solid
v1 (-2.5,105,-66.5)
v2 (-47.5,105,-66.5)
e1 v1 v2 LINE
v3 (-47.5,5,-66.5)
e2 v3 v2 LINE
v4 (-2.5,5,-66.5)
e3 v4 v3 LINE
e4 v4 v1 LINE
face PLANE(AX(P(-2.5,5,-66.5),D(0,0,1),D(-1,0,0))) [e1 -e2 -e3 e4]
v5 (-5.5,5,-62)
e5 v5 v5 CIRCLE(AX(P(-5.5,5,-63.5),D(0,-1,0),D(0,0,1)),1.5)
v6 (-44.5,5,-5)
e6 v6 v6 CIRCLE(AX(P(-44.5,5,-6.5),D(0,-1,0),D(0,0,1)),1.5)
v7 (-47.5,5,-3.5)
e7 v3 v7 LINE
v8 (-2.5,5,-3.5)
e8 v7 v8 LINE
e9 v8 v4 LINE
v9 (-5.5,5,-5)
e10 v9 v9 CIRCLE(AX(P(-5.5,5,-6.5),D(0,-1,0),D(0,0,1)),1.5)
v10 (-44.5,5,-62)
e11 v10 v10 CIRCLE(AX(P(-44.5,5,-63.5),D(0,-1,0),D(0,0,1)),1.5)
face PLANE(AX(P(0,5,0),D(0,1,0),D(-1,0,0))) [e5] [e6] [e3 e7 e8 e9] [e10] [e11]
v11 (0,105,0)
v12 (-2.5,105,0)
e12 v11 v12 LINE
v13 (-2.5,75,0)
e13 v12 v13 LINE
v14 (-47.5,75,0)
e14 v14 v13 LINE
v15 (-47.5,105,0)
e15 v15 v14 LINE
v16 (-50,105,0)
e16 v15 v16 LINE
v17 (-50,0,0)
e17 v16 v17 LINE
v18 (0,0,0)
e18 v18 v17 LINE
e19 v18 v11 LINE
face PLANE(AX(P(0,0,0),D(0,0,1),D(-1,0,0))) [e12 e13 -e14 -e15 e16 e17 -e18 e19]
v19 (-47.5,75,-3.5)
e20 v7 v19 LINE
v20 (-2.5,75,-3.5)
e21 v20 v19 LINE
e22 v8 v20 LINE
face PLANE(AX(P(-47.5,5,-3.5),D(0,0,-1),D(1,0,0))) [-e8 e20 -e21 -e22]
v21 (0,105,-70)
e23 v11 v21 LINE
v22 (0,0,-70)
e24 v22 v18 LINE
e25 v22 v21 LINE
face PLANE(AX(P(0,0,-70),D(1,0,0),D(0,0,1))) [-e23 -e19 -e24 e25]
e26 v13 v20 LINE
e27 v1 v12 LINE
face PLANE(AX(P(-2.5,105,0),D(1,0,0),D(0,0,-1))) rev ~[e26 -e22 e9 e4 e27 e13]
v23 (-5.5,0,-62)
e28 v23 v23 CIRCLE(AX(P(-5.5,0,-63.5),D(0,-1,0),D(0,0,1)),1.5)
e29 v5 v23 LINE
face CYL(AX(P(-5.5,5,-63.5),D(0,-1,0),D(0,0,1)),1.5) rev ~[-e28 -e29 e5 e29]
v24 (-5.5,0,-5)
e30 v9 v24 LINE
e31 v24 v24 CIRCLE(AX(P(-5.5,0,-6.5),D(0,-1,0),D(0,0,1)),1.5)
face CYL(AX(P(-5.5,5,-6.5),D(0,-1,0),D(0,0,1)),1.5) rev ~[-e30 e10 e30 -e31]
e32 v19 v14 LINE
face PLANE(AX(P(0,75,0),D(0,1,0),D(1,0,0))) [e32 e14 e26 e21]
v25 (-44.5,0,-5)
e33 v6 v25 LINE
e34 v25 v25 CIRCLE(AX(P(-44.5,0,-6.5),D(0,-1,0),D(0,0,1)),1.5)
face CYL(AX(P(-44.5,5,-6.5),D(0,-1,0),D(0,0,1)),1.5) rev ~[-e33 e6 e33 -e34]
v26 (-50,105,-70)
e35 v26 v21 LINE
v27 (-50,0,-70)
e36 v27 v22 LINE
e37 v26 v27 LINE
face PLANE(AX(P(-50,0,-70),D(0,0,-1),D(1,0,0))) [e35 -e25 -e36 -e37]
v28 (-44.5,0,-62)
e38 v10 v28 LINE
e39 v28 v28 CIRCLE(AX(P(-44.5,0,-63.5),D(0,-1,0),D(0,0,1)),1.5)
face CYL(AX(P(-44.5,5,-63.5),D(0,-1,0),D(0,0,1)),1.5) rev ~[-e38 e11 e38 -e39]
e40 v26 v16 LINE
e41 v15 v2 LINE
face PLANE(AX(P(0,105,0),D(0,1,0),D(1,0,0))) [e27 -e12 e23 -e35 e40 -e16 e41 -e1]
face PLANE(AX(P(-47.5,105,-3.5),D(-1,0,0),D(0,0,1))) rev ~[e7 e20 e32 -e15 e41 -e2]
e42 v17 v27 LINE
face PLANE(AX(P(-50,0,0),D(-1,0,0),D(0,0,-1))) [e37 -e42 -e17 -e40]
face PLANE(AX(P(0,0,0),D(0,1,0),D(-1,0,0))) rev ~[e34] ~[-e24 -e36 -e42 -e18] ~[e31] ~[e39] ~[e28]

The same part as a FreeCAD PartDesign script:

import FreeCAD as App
import Part
import Sketcher
Q = App.Units.Quantity

doc = App.newDocument("Part")
body = doc.addObject("PartDesign::Body", "Body")

# Sketch on XZ plane
sketch1 = body.newObject("Sketcher::SketchObject", "Sketch")
sketch1.AttachmentSupport = (doc.getObject("XZ_Plane"), [""])
sketch1.MapMode = "FlatFace"
sketch1.addGeometry(Part.LineSegment(App.Vector(-50, 0, 0), App.Vector(0, 0, 0)), False)
sketch1.addGeometry(Part.LineSegment(App.Vector(0, 0, 0), App.Vector(0, -70, 0)), False)
sketch1.addGeometry(Part.LineSegment(App.Vector(0, -70, 0), App.Vector(-50, -70, 0)), False)
sketch1.addGeometry(Part.LineSegment(App.Vector(-50, -70, 0), App.Vector(-50, 0, 0)), False)
sketch1.addConstraint(Sketcher.Constraint("Coincident", 0, 2, 1, 1))
sketch1.addConstraint(Sketcher.Constraint("Coincident", 1, 2, 2, 1))
sketch1.addConstraint(Sketcher.Constraint("Coincident", 2, 2, 3, 1))
sketch1.addConstraint(Sketcher.Constraint("Coincident", 3, 2, 0, 1))
sketch1.addConstraint(Sketcher.Constraint("Horizontal", 0))
sketch1.addConstraint(Sketcher.Constraint("Vertical", 1))
sketch1.addConstraint(Sketcher.Constraint("Horizontal", 2))
sketch1.addConstraint(Sketcher.Constraint("Vertical", 3))
sketch1.addConstraint(Sketcher.Constraint("Coincident", 0, 2, -1, 1))
sketch1.addConstraint(Sketcher.Constraint("DistanceX", 0, 1, 0, 2, Q("50 mm")))
sketch1.addConstraint(Sketcher.Constraint("DistanceY", 1, 2, 1, 1, Q("70 mm")))
pad1 = body.newObject("PartDesign::Pad", "Pad")
pad1.Profile = sketch1
pad1.Length = 5
pad1.Reversed = True

# Sketch on XZ plane
sketch2 = body.newObject("Sketcher::SketchObject", "Sketch001")
sketch2.AttachmentSupport = (doc.getObject("XZ_Plane"), [""])
sketch2.MapMode = "FlatFace"
sketch2.AttachmentOffset = App.Placement(App.Vector(0, 0, -5), App.Rotation())
sketch2.addGeometry(Part.LineSegment(App.Vector(-50, 0, 0), App.Vector(0, 0, 0)), False)
sketch2.addGeometry(Part.LineSegment(App.Vector(0, 0, 0), App.Vector(0, -70, 0)), False)
sketch2.addGeometry(Part.LineSegment(App.Vector(0, -70, 0), App.Vector(-50, -70, 0)), False)
sketch2.addGeometry(Part.LineSegment(App.Vector(-50, -70, 0), App.Vector(-50, 0, 0)), False)
sketch2.addGeometry(Part.LineSegment(App.Vector(-48, -66, 0), App.Vector(-2, -66, 0)), False)
sketch2.addGeometry(Part.LineSegment(App.Vector(-2, -66, 0), App.Vector(-2, -4, 0)), False)
sketch2.addGeometry(Part.LineSegment(App.Vector(-2, -4, 0), App.Vector(-48, -4, 0)), False)
sketch2.addGeometry(Part.LineSegment(App.Vector(-48, -4, 0), App.Vector(-48, -66, 0)), False)
sketch2.addConstraint(Sketcher.Constraint("Coincident", 0, 2, 1, 1))
sketch2.addConstraint(Sketcher.Constraint("Coincident", 1, 2, 2, 1))
sketch2.addConstraint(Sketcher.Constraint("Coincident", 2, 2, 3, 1))
sketch2.addConstraint(Sketcher.Constraint("Coincident", 3, 2, 0, 1))
sketch2.addConstraint(Sketcher.Constraint("Coincident", 4, 2, 5, 1))
sketch2.addConstraint(Sketcher.Constraint("Coincident", 5, 2, 6, 1))
sketch2.addConstraint(Sketcher.Constraint("Coincident", 6, 2, 7, 1))
sketch2.addConstraint(Sketcher.Constraint("Coincident", 7, 2, 4, 1))
sketch2.addConstraint(Sketcher.Constraint("Horizontal", 0))
sketch2.addConstraint(Sketcher.Constraint("Vertical", 1))
sketch2.addConstraint(Sketcher.Constraint("Horizontal", 2))
sketch2.addConstraint(Sketcher.Constraint("Vertical", 3))
sketch2.addConstraint(Sketcher.Constraint("Horizontal", 4))
sketch2.addConstraint(Sketcher.Constraint("Vertical", 5))
sketch2.addConstraint(Sketcher.Constraint("Horizontal", 6))
sketch2.addConstraint(Sketcher.Constraint("Vertical", 7))
sketch2.addConstraint(Sketcher.Constraint("Coincident", 0, 2, -1, 1))
sketch2.addConstraint(Sketcher.Constraint("DistanceX", 0, 1, 0, 2, Q("50 mm")))
sketch2.addConstraint(Sketcher.Constraint("DistanceX", 4, 1, 4, 2, Q("45 mm")))
sketch2.addConstraint(Sketcher.Constraint("DistanceY", 5, 1, 5, 2, Q("63 mm")))
sketch2.addConstraint(Sketcher.Constraint("DistanceX", 4, 2, -1, 1, Q("2.5 mm")))
sketch2.addConstraint(Sketcher.Constraint("DistanceY", 5, 2, -1, 1, Q("3.5 mm")))
sketch2.addConstraint(Sketcher.Constraint("DistanceY", 1, 2, 4, 2, Q("3.5 mm")))
pad2 = body.newObject("PartDesign::Pad", "Pad001")
pad2.Profile = sketch2
pad2.Length = 100
pad2.Reversed = True

# Sketch on XZ plane
sketch3 = body.newObject("Sketcher::SketchObject", "Sketch002")
sketch3.AttachmentSupport = (doc.getObject("XZ_Plane"), [""])
sketch3.MapMode = "FlatFace"
sketch3.AttachmentOffset = App.Placement(App.Vector(0, 0, -5), App.Rotation())
sketch3.addGeometry(Part.Circle(App.Vector(-44.5, -6.5, 0), App.Vector(0, 0, 1), 1.5), False)
sketch3.addGeometry(Part.Circle(App.Vector(-5.5, -6.5, 0), App.Vector(0, 0, 1), 1.5), False)
sketch3.addGeometry(Part.Circle(App.Vector(-5.5, -63.5, 0), App.Vector(0, 0, 1), 1.5), False)
sketch3.addGeometry(Part.Circle(App.Vector(-44.5, -63.5, 0), App.Vector(0, 0, 1), 1.5), False)
sketch3.addConstraint(Sketcher.Constraint("Equal", 0, 1))
sketch3.addConstraint(Sketcher.Constraint("Equal", 1, 2))
sketch3.addConstraint(Sketcher.Constraint("Equal", 2, 3))
sketch3.addConstraint(Sketcher.Constraint("Horizontal", 0, 3, 1, 3))
sketch3.addConstraint(Sketcher.Constraint("Horizontal", 2, 3, 3, 3))
sketch3.addConstraint(Sketcher.Constraint("Vertical", 1, 3, 2, 3))
sketch3.addConstraint(Sketcher.Constraint("Vertical", 0, 3, 3, 3))
sketch3.addConstraint(Sketcher.Constraint("Diameter", 0, Q("3 mm")))
sketch3.addConstraint(Sketcher.Constraint("DistanceX", 0, 3, 1, 3, Q("39 mm")))
sketch3.addConstraint(Sketcher.Constraint("DistanceY", 2, 3, 1, 3, Q("57 mm")))
sketch3.addConstraint(Sketcher.Constraint("DistanceX", 0, 3, -1, 1, Q("44.5 mm")))
sketch3.addConstraint(Sketcher.Constraint("DistanceY", 0, 3, -1, 1, Q("6.5 mm")))
doc.recompute()
hole = body.newObject("PartDesign::Hole", "Hole")
hole.Profile = sketch3
hole.ThreadType = "None"
hole.Diameter = 3
hole.DepthType = "ThroughAll"
hole.Reversed = True

# Sketch on XZ plane
sketch4 = body.newObject("Sketcher::SketchObject", "Sketch003")
sketch4.AttachmentSupport = (doc.getObject("XZ_Plane"), [""])
sketch4.MapMode = "FlatFace"
sketch4.AttachmentOffset = App.Placement(App.Vector(0, 0, -105), App.Rotation())
sketch4.addGeometry(Part.LineSegment(App.Vector(-47.5, -3.5, 0), App.Vector(-47.5, 0, 0)), False)
sketch4.addGeometry(Part.LineSegment(App.Vector(-47.5, 0, 0), App.Vector(-2.5, 0, 0)), False)
sketch4.addGeometry(Part.LineSegment(App.Vector(-2.5, 0, 0), App.Vector(-2.5, -3.5, 0)), False)
sketch4.addGeometry(Part.LineSegment(App.Vector(-2.5, -3.5, 0), App.Vector(-47.5, -3.5, 0)), False)
sketch4.addConstraint(Sketcher.Constraint("Coincident", 0, 2, 1, 1))
sketch4.addConstraint(Sketcher.Constraint("Coincident", 1, 2, 2, 1))
sketch4.addConstraint(Sketcher.Constraint("Coincident", 2, 2, 3, 1))
sketch4.addConstraint(Sketcher.Constraint("Coincident", 3, 2, 0, 1))
sketch4.addConstraint(Sketcher.Constraint("Vertical", 0))
sketch4.addConstraint(Sketcher.Constraint("Horizontal", 1))
sketch4.addConstraint(Sketcher.Constraint("Vertical", 2))
sketch4.addConstraint(Sketcher.Constraint("Horizontal", 3))
sketch4.addConstraint(Sketcher.Constraint("PointOnObject", 0, 2, -1))
sketch4.addConstraint(Sketcher.Constraint("DistanceX", 1, 1, 1, 2, Q("45 mm")))
sketch4.addConstraint(Sketcher.Constraint("DistanceY", 0, 1, 0, 2, Q("3.5 mm")))
sketch4.addConstraint(Sketcher.Constraint("DistanceX", 0, 2, -1, 1, Q("47.5 mm")))
pocket1 = body.newObject("PartDesign::Pocket", "Pocket")
pocket1.Profile = sketch4
pocket1.Length = 30
pocket1.Reversed = True

doc.recompute()
